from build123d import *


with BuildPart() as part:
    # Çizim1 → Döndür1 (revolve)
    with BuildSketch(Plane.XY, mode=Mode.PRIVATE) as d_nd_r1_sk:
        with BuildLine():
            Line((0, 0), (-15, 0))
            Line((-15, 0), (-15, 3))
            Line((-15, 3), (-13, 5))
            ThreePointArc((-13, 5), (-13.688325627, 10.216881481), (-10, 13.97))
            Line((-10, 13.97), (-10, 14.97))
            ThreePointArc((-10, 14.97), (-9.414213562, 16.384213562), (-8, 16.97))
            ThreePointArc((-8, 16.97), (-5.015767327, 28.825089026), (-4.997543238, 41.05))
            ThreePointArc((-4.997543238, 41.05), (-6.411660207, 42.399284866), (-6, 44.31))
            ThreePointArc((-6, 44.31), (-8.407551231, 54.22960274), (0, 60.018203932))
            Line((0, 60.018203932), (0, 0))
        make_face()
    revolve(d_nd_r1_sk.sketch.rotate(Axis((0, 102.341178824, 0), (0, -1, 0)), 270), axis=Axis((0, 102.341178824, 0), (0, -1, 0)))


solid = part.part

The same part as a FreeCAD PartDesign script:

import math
import FreeCAD as App
import Part
import Sketcher

V = App.Vector
Q = App.Units.Quantity

doc = App.newDocument("Part")
body = doc.addObject("PartDesign::Body", "Body")

sketch1 = body.newObject("Sketcher::SketchObject", "Sketch")
sketch1.AttachmentSupport = (doc.getObject("XY_Plane"), [""])
sketch1.MapMode = "FlatFace"
sketch1.addGeometry([
    Part.LineSegment(V(-15, 0, 0), V(0, 0, 0)),
    Part.LineSegment(V(0, 0, 0), V(0, 60, 0)),
    Part.ArcOfCircle(Part.Circle(V(0, 51, 0), V(0, 0, 1), 9), math.radians(90), math.radians(228)),
    Part.ArcOfCircle(Part.Circle(V(-4.5, 43, 0), V(0, 0, 1), 2), math.radians(139), math.radians(256)),
    Part.ArcOfCircle(Part.Circle(V(-54.6, 35, 0), V(0, 0, 1), 50), math.radians(-21), math.radians(7)),
    Part.ArcOfCircle(Part.Circle(V(-8, 15, 0), V(0, 0, 1), 2), math.radians(90), math.radians(180)),
    Part.LineSegment(V(-10, 15, 0), V(-10, 14, 0)),
    Part.ArcOfCircle(Part.Circle(V(-8, 8.3, 0), V(0, 0, 1), 6), math.radians(109), math.radians(214)),
    Part.LineSegment(V(-13, 5, 0), V(-15, 3, 0)),
    Part.LineSegment(V(-15, 3, 0), V(-15, 0, 0)),
], False)
sketch1.addConstraint([
    Sketcher.Constraint("Coincident", 0, 2, 1, 1),
    Sketcher.Constraint("Coincident", 1, 2, 2, 1),
    Sketcher.Constraint("Coincident", 2, 2, 3, 1),
    Sketcher.Constraint("Coincident", 3, 2, 4, 2),
    Sketcher.Constraint("Coincident", 4, 1, 5, 1),
    Sketcher.Constraint("Tangent", 5, 2, 6, 1),
    Sketcher.Constraint("Coincident", 6, 2, 7, 1),
    Sketcher.Constraint("Coincident", 7, 2, 8, 1),
    Sketcher.Constraint("Coincident", 8, 2, 9, 1),
    Sketcher.Constraint("Coincident", 9, 2, 0, 1),
    Sketcher.Constraint("Horizontal", 0),
    Sketcher.Constraint("Vertical", 1),
    Sketcher.Constraint("Vertical", 6),
    Sketcher.Constraint("Vertical", 9),
    Sketcher.Constraint("Coincident", 0, 2, -1, 1),
    Sketcher.Constraint("Equal", 3, 5),
    Sketcher.Constraint("PointOnObject", 2, 3, -2),
    Sketcher.Constraint("Vertical", 5, 3, 4, 1),
    Sketcher.Constraint("Radius", 2, Q("9 mm")),
    Sketcher.Constraint("Radius", 3, Q("2 mm")),
    Sketcher.Constraint("Radius", 4, Q("50 mm")),
    Sketcher.Constraint("Radius", 7, Q("6 mm")),
    Sketcher.Constraint("DistanceX", 0, 1, 0, 2, Q("15 mm")),
    Sketcher.Constraint("DistanceY", 6, 2, 6, 1, Q("1 mm")),
    Sketcher.Constraint("DistanceY", 9, 2, 9, 1, Q("3 mm")),
    Sketcher.Constraint("Angle", 8, Q("-135 deg")),
    Sketcher.Constraint("DistanceX", 5, 3, -1, 1, Q("8 mm")),
    Sketcher.Constraint("DistanceX", 2, 2, -1, 1, Q("6 mm")),
    Sketcher.Constraint("DistanceX", 7, 2, -1, 1, Q("13 mm")),
    Sketcher.Constraint("DistanceX", 3, 3, -1, 1, Q("4.5 mm")),
    Sketcher.Constraint("DistanceY", -1, 1, 5, 3, Q("14.97 mm")),
    Sketcher.Constraint("DistanceY", -1, 1, 2, 2, Q("44.31 mm")),
    Sketcher.Constraint("DistanceY", -1, 1, 3, 2, Q("41.05 mm")),
])
revolution = body.newObject("PartDesign::Revolution", "Revolution")
revolution.Profile = sketch1
revolution.ReferenceAxis = (sketch1, ["V_Axis"])
revolution.Angle = 360

doc.recompute()
